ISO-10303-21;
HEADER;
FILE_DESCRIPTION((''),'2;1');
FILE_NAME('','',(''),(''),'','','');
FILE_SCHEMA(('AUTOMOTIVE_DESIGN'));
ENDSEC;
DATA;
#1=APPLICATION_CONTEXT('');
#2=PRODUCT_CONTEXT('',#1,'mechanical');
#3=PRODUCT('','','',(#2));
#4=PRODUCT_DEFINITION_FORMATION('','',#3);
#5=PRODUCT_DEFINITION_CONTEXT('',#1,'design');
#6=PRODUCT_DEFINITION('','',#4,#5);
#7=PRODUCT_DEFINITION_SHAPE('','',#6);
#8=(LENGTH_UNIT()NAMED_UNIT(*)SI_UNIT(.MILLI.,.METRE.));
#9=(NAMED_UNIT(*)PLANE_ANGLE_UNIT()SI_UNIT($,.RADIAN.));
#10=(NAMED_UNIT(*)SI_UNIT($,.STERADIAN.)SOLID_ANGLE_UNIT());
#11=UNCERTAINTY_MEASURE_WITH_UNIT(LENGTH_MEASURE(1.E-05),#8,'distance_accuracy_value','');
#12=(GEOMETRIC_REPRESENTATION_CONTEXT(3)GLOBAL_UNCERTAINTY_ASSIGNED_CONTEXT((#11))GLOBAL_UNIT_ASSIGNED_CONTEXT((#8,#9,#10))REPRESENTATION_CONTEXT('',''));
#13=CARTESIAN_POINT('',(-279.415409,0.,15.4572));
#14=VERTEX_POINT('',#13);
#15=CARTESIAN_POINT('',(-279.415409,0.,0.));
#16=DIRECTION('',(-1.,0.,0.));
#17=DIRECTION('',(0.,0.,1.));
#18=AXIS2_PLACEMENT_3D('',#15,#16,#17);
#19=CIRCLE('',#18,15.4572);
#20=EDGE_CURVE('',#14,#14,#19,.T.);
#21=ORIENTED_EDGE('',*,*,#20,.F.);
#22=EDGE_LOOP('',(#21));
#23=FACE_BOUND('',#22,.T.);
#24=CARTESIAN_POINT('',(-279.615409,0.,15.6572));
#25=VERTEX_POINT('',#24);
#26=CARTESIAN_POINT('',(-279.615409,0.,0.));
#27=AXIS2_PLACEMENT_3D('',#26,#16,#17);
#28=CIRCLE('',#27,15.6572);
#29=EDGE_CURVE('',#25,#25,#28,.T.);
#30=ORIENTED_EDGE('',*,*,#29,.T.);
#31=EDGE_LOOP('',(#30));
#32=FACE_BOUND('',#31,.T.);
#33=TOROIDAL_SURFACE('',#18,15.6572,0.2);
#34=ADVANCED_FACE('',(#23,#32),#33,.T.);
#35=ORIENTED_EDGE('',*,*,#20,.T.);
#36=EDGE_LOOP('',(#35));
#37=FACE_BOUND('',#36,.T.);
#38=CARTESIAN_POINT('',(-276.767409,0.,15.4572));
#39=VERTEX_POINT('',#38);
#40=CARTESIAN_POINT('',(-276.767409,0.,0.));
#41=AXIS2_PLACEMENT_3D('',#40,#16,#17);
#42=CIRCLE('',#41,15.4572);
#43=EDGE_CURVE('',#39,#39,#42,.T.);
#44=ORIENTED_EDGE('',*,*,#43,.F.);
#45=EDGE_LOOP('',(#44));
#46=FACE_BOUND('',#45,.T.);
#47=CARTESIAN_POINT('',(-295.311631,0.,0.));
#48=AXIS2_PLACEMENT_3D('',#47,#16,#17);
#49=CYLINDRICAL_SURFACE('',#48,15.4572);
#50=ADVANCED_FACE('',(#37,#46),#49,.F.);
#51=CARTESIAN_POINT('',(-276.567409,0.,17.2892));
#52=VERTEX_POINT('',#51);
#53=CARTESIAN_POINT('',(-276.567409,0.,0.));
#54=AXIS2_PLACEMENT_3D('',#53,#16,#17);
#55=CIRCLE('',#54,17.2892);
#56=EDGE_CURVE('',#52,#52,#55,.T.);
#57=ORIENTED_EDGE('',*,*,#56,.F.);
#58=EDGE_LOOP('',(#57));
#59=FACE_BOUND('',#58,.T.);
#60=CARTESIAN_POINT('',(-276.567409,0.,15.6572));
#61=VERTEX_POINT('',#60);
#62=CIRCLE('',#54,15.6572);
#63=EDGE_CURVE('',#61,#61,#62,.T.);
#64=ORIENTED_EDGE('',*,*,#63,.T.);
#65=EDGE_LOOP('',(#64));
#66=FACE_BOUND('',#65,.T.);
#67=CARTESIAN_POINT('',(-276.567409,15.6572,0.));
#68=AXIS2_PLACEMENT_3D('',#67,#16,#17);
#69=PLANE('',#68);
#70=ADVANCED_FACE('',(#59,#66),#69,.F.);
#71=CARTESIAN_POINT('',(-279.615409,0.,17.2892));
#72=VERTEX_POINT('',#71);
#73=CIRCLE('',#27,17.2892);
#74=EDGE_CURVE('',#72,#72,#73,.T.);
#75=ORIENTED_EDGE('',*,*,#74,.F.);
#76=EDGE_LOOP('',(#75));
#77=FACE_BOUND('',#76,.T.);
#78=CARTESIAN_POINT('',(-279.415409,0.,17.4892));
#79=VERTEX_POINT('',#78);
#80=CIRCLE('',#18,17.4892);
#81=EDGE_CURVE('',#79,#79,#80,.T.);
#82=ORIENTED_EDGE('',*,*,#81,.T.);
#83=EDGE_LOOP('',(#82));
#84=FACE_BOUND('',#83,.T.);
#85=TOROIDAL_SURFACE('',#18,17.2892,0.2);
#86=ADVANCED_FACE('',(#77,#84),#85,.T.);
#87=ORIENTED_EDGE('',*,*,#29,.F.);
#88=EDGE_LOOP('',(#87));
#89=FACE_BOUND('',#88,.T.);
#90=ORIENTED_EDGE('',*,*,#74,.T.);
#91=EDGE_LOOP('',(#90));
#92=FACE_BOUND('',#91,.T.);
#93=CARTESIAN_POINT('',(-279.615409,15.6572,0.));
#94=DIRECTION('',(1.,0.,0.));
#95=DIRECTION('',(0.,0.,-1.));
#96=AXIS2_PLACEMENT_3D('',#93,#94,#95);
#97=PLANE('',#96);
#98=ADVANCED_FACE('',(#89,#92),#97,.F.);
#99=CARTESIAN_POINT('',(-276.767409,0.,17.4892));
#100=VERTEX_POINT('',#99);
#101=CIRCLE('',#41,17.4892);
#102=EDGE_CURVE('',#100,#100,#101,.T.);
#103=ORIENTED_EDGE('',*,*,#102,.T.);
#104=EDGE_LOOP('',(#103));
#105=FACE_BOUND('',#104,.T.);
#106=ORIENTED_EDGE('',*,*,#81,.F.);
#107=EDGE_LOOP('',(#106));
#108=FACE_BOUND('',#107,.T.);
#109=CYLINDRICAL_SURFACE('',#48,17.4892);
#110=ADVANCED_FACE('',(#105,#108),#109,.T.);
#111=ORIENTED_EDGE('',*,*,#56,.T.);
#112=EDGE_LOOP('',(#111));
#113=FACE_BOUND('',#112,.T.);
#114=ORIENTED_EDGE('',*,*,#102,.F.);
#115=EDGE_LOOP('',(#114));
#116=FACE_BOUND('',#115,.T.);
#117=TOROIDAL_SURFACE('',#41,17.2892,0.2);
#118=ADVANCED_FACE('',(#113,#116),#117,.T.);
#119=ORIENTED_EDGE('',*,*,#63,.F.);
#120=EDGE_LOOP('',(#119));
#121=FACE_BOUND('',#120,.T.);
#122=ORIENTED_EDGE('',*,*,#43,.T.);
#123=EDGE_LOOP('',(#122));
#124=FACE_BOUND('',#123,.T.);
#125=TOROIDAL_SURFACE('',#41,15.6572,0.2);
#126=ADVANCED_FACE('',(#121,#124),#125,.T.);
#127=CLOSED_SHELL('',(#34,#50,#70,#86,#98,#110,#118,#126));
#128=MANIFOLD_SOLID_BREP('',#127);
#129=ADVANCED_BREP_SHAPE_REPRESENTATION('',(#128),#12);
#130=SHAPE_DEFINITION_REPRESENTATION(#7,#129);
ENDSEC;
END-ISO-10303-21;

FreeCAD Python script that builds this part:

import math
import FreeCAD as App
import Part
import Sketcher

V = App.Vector
Q = App.Units.Quantity

doc = App.newDocument("Part")
body = doc.addObject("PartDesign::Body", "Body")

sketch1 = doc.addObject("Sketcher::SketchObject", "Sketch")
body.addObject(sketch1)
sketch1.AttachmentSupport = (doc.XY_Plane, [""])
sketch1.MapMode = "FlatFace"
sketch1.addGeometry(Part.LineSegment(V(-279.42, 15.46, 0), V(-276.77, 15.46, 0)), False)
sketch1.addGeometry(Part.ArcOfCircle(Part.Circle(V(-276.77, 15.66, 0), V(0, 0, 1), 0.2), math.radians(-90), math.radians(0)), False)
sketch1.addGeometry(Part.LineSegment(V(-276.57, 15.66, 0), V(-276.57, 17.29, 0)), False)
sketch1.addGeometry(Part.ArcOfCircle(Part.Circle(V(-276.77, 17.29, 0), V(0, 0, 1), 0.2), math.radians(0), math.radians(90)), False)
sketch1.addGeometry(Part.LineSegment(V(-276.77, 17.49, 0), V(-279.42, 17.49, 0)), False)
sketch1.addGeometry(Part.ArcOfCircle(Part.Circle(V(-279.42, 17.29, 0), V(0, 0, 1), 0.2), math.radians(90), math.radians(180)), False)
sketch1.addGeometry(Part.LineSegment(V(-279.62, 17.29, 0), V(-279.62, 15.66, 0)), False)
sketch1.addGeometry(Part.ArcOfCircle(Part.Circle(V(-279.42, 15.66, 0), V(0, 0, 1), 0.2), math.radians(-180), math.radians(-90)), False)
sketch1.addConstraint(Sketcher.Constraint("Tangent", 0, 2, 1, 1))
sketch1.addConstraint(Sketcher.Constraint("Tangent", 1, 2, 2, 1))
sketch1.addConstraint(Sketcher.Constraint("Tangent", 2, 2, 3, 1))
sketch1.addConstraint(Sketcher.Constraint("Tangent", 3, 2, 4, 1))
sketch1.addConstraint(Sketcher.Constraint("Tangent", 4, 2, 5, 1))
sketch1.addConstraint(Sketcher.Constraint("Tangent", 5, 2, 6, 1))
sketch1.addConstraint(Sketcher.Constraint("Tangent", 6, 2, 7, 1))
sketch1.addConstraint(Sketcher.Constraint("Tangent", 7, 2, 0, 1))
sketch1.addConstraint(Sketcher.Constraint("Horizontal", 0))
sketch1.addConstraint(Sketcher.Constraint("Vertical", 2))
sketch1.addConstraint(Sketcher.Constraint("Horizontal", 4))
sketch1.addConstraint(Sketcher.Constraint("Vertical", 6))
sketch1.addConstraint(Sketcher.Constraint("Equal", 1, 3))
sketch1.addConstraint(Sketcher.Constraint("Equal", 3, 5))
sketch1.addConstraint(Sketcher.Constraint("Equal", 5, 7))
sketch1.addConstraint(Sketcher.Constraint("Radius", 1, Q("0.2 mm")))
sketch1.addConstraint(Sketcher.Constraint("DistanceX", 0, 1, 0, 2, Q("2.648 mm")))
sketch1.addConstraint(Sketcher.Constraint("DistanceY", 2, 1, 2, 2, Q("1.632 mm")))
sketch1.addConstraint(Sketcher.Constraint("DistanceY", -1, 1, 1, 3, Q("15.6572 mm")))
sketch1.addConstraint(Sketcher.Constraint("DistanceX", 1, 3, -1, 1, Q("276.767409 mm")))
revolution = doc.addObject("PartDesign::Revolution", "Revolution")
body.addObject(revolution)
revolution.Profile = sketch1
revolution.ReferenceAxis = (sketch1, ["H_Axis"])
revolution.Angle = 360

doc.recompute()
